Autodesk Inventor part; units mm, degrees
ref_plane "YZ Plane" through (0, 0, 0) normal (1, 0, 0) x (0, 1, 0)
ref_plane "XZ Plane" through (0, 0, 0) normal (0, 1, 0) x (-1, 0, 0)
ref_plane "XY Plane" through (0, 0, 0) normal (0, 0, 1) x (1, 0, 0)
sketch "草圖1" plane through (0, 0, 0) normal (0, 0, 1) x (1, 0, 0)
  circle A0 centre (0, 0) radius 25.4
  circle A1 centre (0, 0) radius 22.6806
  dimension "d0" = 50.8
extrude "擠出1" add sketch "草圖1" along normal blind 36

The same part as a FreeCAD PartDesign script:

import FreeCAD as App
import Part
import Sketcher

V = App.Vector

doc = App.newDocument("Part")
body = doc.addObject("PartDesign::Body", "Body")

sketch1 = body.newObject("Sketcher::SketchObject", "Sketch")
sketch1.AttachmentSupport = (doc.getObject("XY_Plane"), [""])
sketch1.MapMode = "FlatFace"
sketch1.addGeometry(Part.Circle(V(0, 0, 0), V(0, 0, 1), 25.4), False)
sketch1.addGeometry(Part.Circle(V(0, 0, 0), V(0, 0, 1), 22.6806), False)
sketch1.addConstraint(Sketcher.Constraint("Coincident", 0, 3, -1, 1))
sketch1.addConstraint(Sketcher.Constraint("Coincident", 1, 3, -1, 1))
sketch1.addConstraint(Sketcher.Constraint("Diameter", 0, 50.8))
sketch1.addConstraint(Sketcher.Constraint("Diameter", 1, 45.3612))
pad1 = body.newObject("PartDesign::Pad", "Pad")
pad1.Profile = sketch1
pad1.Length = 36

doc.recompute()
